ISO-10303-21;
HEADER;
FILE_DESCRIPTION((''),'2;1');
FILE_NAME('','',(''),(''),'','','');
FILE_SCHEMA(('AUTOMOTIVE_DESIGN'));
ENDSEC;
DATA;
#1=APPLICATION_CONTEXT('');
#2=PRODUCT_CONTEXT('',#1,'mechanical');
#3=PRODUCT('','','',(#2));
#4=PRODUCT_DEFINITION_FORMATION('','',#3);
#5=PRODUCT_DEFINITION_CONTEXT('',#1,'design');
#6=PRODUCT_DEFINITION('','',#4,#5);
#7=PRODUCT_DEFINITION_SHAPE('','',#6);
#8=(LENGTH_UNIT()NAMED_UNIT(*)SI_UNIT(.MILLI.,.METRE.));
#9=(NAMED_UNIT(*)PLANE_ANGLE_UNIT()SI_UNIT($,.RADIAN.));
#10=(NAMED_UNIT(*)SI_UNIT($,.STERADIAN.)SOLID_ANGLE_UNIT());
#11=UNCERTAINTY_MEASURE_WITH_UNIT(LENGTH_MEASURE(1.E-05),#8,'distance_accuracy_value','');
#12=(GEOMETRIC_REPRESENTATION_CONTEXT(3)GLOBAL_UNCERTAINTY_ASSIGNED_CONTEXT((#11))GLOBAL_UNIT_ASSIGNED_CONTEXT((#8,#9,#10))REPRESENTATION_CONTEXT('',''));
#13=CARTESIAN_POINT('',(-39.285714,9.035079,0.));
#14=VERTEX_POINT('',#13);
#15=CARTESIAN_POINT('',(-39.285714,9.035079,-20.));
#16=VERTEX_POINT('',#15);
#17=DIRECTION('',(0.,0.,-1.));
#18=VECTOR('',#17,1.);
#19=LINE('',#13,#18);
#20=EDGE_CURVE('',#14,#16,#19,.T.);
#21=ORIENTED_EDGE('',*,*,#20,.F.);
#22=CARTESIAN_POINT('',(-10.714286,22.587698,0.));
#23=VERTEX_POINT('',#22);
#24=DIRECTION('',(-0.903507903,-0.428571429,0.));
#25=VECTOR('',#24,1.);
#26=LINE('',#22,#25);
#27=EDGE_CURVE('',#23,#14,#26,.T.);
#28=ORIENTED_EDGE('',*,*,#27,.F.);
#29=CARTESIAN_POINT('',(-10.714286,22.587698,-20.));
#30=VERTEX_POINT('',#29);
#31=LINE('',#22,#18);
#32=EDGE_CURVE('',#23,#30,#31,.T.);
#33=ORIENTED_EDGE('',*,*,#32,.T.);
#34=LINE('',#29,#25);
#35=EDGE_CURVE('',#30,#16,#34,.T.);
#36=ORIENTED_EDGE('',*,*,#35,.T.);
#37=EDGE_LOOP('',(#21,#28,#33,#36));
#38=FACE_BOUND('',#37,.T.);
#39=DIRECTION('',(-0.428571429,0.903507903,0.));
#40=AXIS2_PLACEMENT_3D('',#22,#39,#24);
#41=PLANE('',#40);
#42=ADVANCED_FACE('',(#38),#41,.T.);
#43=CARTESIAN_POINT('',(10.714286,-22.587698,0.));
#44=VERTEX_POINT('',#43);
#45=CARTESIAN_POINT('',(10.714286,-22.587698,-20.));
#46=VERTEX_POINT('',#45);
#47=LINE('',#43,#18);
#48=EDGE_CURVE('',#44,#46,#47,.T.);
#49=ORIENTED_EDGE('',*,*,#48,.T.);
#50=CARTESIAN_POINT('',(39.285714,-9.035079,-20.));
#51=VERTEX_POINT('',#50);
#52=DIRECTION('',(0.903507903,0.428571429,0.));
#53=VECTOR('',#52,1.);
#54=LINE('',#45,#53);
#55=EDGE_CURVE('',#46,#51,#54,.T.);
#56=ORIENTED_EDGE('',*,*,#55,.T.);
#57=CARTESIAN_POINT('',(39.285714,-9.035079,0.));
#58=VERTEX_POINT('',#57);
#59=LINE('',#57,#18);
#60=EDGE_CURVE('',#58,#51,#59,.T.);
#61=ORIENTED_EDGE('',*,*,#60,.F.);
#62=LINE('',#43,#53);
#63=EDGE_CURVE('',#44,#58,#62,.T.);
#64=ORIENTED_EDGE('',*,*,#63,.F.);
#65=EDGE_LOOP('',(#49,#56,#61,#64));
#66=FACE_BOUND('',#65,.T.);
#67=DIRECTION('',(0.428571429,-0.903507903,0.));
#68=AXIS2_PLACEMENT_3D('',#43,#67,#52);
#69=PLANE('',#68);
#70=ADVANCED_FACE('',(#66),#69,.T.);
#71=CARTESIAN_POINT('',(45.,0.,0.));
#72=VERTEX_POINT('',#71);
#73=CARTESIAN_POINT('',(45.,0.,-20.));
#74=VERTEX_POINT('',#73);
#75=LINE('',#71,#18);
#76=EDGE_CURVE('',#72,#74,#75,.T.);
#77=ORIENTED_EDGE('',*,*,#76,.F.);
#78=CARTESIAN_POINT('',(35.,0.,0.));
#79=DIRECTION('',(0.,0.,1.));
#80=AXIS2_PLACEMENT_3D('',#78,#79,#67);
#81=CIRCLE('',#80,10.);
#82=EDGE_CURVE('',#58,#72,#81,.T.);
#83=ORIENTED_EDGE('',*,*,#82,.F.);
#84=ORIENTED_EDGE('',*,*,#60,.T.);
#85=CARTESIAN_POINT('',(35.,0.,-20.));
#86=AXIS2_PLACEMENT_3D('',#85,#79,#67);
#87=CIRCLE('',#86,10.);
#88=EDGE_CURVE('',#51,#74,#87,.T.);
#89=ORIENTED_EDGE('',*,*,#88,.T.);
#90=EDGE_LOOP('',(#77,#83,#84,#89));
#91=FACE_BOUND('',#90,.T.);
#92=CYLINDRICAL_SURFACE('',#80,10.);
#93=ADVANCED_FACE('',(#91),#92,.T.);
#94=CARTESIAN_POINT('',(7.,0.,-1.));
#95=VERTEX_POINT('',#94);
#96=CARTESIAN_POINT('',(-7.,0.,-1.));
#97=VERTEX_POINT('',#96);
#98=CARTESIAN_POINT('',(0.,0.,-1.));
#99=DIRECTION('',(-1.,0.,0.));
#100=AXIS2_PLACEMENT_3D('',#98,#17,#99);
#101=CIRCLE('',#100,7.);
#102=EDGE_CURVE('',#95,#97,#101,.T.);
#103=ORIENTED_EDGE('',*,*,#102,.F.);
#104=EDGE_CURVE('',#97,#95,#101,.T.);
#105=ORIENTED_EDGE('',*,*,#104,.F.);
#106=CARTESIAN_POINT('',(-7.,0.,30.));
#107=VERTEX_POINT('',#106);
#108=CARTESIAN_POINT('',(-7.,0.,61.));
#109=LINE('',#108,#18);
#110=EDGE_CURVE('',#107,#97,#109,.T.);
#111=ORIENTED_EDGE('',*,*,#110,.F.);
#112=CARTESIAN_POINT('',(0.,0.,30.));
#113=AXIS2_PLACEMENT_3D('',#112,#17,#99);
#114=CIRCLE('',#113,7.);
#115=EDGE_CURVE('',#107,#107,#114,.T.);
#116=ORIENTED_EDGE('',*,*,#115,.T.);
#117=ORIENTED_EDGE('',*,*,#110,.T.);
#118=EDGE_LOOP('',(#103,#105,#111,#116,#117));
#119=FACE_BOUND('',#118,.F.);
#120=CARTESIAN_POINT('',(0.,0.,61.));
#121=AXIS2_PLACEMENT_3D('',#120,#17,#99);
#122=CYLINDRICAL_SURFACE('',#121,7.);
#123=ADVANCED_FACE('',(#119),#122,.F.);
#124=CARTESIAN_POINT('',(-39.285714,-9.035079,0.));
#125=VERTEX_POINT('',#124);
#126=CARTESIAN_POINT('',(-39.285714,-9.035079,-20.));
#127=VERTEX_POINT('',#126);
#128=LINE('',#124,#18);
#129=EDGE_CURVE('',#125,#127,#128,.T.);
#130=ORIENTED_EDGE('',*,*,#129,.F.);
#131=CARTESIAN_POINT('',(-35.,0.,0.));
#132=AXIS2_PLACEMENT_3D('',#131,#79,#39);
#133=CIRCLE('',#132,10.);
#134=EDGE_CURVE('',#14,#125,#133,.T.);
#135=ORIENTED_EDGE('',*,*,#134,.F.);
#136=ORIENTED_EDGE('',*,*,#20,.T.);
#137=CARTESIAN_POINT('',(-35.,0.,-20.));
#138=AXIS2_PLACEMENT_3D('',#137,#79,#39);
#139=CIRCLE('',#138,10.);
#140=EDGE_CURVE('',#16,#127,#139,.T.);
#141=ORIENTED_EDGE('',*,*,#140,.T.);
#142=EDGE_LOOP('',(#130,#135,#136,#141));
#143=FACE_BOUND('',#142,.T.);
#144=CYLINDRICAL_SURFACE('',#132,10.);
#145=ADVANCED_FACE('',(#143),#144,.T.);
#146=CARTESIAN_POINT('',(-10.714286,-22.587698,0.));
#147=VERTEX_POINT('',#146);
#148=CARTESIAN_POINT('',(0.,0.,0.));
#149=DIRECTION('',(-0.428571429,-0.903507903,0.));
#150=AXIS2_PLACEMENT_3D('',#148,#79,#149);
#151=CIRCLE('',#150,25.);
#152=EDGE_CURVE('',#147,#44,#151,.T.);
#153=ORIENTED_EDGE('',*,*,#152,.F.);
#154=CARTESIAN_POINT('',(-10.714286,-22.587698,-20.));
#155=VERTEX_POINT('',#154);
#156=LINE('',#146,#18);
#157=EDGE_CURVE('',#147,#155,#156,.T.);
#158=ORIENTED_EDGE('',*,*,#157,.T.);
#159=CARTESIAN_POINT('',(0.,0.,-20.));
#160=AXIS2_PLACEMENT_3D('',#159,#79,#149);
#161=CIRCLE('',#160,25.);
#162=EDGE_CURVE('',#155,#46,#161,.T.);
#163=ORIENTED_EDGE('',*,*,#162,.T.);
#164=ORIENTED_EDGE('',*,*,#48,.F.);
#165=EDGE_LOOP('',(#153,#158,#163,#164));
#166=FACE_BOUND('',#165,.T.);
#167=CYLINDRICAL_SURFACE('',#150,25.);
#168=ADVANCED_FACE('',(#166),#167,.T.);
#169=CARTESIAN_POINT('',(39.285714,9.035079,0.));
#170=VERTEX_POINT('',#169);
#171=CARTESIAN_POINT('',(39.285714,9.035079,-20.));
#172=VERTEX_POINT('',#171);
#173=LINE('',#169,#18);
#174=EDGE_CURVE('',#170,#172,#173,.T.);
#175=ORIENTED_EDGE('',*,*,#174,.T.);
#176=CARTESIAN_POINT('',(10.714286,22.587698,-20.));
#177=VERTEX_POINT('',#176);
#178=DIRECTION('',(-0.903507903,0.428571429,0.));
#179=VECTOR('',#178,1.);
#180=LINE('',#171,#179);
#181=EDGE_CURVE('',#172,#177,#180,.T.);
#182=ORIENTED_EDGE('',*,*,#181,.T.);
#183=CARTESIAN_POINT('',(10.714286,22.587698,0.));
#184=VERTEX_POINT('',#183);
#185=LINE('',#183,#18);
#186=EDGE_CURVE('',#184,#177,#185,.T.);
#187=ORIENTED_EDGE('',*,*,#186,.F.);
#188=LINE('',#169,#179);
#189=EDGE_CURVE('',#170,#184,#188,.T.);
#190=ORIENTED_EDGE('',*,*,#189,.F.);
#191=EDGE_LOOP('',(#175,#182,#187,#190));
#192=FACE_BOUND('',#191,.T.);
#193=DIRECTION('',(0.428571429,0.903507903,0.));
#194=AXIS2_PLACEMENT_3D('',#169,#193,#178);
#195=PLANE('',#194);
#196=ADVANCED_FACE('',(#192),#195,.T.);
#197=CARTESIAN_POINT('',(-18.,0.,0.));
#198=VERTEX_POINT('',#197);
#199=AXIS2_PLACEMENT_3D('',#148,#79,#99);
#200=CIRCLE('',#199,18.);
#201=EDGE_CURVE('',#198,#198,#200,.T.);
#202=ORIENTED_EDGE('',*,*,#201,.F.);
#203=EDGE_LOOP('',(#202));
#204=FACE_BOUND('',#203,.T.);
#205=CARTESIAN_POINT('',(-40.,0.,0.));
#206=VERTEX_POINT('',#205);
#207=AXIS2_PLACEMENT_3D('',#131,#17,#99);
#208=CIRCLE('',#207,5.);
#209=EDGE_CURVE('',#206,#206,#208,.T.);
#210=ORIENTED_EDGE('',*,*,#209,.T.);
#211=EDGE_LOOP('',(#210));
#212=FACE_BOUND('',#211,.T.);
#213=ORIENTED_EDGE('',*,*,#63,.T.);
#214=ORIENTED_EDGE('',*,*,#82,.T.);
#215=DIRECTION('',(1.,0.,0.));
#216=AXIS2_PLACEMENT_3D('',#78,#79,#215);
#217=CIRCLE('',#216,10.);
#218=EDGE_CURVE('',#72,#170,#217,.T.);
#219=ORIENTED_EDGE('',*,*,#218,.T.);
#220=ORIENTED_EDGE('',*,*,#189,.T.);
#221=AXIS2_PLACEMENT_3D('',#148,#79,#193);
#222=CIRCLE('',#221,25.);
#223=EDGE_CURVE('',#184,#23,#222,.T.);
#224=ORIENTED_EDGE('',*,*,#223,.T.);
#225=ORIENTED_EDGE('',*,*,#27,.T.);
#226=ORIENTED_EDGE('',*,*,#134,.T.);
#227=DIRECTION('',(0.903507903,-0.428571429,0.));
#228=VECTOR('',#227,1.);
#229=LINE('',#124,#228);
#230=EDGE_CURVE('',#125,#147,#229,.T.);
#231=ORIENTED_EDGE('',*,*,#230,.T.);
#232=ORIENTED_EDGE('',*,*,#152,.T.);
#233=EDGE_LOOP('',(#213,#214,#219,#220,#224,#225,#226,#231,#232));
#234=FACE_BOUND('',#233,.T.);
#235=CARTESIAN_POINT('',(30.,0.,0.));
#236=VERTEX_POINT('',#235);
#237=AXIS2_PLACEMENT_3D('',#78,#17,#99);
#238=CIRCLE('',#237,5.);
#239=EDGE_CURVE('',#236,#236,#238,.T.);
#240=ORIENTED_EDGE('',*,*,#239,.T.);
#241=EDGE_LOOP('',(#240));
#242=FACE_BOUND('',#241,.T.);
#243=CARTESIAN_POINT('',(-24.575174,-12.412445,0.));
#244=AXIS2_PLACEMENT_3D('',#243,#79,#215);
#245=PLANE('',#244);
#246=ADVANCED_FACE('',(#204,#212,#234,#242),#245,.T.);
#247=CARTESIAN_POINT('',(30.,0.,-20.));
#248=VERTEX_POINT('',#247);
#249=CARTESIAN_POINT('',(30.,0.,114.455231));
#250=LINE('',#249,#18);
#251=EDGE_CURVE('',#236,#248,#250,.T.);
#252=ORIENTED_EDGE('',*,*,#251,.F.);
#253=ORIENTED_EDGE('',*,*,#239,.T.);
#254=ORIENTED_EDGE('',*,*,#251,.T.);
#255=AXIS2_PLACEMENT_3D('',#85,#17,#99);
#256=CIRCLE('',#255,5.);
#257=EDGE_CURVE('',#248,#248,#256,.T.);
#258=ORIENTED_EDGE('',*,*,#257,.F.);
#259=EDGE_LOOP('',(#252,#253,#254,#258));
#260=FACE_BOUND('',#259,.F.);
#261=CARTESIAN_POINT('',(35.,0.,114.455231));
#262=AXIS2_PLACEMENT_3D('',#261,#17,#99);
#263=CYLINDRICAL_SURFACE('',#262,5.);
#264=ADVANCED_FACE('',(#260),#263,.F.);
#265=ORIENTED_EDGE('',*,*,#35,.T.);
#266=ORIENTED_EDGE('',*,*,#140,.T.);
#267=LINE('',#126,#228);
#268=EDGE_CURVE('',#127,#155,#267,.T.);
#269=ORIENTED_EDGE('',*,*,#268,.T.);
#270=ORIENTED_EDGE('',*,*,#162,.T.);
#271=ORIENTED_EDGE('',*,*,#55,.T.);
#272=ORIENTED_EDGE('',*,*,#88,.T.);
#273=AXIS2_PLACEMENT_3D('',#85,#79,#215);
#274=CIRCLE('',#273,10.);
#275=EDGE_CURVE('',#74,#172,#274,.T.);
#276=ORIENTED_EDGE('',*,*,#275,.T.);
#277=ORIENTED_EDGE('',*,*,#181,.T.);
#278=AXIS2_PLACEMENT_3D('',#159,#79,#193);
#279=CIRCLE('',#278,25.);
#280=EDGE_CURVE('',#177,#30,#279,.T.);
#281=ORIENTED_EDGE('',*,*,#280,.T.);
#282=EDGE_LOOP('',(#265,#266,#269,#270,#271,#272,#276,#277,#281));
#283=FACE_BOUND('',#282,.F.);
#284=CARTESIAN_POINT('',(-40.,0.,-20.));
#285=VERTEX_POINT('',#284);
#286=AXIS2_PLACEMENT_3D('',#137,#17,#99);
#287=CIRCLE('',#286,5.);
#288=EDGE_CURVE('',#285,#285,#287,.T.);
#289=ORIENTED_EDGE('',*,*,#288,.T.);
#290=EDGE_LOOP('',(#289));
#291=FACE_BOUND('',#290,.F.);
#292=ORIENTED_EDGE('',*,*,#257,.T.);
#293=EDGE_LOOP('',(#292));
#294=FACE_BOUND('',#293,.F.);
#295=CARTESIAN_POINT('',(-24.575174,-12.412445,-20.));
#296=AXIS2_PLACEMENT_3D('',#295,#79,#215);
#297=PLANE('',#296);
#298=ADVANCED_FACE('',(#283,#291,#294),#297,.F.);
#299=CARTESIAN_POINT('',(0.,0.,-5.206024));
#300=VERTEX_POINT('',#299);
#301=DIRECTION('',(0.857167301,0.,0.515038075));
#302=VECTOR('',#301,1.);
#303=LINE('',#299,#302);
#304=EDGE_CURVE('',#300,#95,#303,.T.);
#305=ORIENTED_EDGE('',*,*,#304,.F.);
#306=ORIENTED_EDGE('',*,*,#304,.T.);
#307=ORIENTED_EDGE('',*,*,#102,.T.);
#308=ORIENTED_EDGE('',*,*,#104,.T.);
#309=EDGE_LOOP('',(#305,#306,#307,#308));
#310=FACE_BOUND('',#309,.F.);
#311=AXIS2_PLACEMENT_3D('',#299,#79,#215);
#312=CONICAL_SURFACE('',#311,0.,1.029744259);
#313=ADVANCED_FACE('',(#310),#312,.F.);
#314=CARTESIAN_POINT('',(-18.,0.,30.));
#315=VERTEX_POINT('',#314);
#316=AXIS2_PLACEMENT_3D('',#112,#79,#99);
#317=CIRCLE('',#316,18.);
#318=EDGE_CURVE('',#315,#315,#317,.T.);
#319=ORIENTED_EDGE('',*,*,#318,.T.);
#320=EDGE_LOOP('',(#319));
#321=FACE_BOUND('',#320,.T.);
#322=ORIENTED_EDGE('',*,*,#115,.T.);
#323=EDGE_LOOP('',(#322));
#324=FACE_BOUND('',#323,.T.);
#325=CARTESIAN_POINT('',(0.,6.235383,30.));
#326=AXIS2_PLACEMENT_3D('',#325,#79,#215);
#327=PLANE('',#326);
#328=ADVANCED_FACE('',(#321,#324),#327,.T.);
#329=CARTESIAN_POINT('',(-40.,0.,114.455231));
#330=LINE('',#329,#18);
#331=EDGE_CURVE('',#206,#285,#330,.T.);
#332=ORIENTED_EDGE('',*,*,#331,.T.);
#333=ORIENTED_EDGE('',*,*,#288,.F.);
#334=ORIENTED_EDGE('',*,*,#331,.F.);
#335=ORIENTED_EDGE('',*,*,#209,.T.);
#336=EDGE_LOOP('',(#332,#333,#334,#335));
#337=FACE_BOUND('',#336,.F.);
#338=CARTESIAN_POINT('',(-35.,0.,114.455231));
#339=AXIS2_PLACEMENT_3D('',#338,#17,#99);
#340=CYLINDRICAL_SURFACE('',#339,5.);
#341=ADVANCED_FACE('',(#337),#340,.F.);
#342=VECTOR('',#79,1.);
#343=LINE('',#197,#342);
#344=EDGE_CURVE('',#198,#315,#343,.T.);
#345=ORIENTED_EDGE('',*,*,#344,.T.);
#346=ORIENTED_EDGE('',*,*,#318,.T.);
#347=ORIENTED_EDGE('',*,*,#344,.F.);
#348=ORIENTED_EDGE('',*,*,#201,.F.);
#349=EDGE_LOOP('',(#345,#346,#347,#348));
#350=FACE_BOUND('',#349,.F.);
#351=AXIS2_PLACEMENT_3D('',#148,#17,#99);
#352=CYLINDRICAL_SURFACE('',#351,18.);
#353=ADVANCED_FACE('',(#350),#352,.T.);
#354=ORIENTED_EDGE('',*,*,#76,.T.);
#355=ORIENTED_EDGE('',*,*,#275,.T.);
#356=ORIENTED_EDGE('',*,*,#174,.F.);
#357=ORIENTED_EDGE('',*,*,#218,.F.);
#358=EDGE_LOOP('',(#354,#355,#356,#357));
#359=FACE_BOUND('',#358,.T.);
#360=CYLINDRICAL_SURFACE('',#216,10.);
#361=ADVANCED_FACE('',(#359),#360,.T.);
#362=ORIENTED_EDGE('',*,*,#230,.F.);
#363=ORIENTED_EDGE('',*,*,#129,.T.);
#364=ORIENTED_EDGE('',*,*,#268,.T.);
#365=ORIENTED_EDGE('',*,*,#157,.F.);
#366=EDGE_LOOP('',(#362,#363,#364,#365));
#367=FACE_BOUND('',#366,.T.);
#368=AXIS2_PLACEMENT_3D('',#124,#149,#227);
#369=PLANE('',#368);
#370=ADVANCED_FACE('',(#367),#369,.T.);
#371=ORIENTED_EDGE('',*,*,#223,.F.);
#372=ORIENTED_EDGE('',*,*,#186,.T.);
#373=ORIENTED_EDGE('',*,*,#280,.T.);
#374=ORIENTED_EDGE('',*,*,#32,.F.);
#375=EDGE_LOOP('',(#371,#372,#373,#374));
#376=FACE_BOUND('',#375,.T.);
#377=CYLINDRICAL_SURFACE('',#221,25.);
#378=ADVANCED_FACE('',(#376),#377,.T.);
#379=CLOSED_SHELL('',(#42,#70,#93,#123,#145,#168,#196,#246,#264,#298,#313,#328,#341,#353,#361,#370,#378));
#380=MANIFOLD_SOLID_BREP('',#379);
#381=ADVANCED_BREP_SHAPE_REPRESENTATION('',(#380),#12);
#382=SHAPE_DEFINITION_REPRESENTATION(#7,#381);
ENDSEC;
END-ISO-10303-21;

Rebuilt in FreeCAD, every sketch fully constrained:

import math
import FreeCAD as App
import Part
import Sketcher
from FreeCAD import Vector
Q = App.Units.Quantity

doc = App.newDocument("Part")
params = doc.addObject("Spreadsheet::Sheet", "Params")
for row, (alias, value) in enumerate([
    ("sketch1_radius", "10 mm"),
    ("sketch1_radius2", "25 mm"),
    ("pad1_length", "20 mm"),
    ("sketch2_diameter", "36 mm"),
    ("pad2_length", "30 mm"),
    ("sketch3_diameter", "10 mm"),
    ("hole_diameter", "10 mm"),
    ("sketch4_diameter", "14 mm"),
    ("hole2_diameter", "14 mm"),
    ("hole2_depth", "31 mm"),
], start=1):
    params.set(f"A{row}", alias)
    params.set(f"B{row}", "=" + value)
    params.setAlias(f"B{row}", alias)

body = doc.addObject("PartDesign::Body", "Body")

sketch1 = body.newObject("Sketcher::SketchObject", "Sketch")
sketch1.AttachmentSupport = (doc.getObject("XY_Plane"), [""])
sketch1.MapMode = "FlatFace"
sketch1.addGeometry([
    Part.LineSegment(Vector(10.714286, -22.587698, 0), Vector(39.285714, -9.035079, 0)),
    Part.ArcOfCircle(Part.Circle(Vector(35, 0, 0), Vector(0, 0, 1), 10), math.radians(-64.623066), math.radians(0)),
    Part.ArcOfCircle(Part.Circle(Vector(35, 0, 0), Vector(0, 0, 1), 10), math.radians(0), math.radians(64.623066)),
    Part.LineSegment(Vector(39.285714, 9.035079, 0), Vector(10.714286, 22.587698, 0)),
    Part.ArcOfCircle(Part.Circle(Vector(0, 0, 0), Vector(0, 0, 1), 25), math.radians(64.623066), math.radians(115.376934)),
    Part.LineSegment(Vector(-10.714286, 22.587698, 0), Vector(-39.285714, 9.035079, 0)),
    Part.ArcOfCircle(Part.Circle(Vector(-35, 0, 0), Vector(0, 0, 1), 10), math.radians(115.376934), math.radians(244.623066)),
    Part.LineSegment(Vector(-39.285714, -9.035079, 0), Vector(-10.714286, -22.587698, 0)),
    Part.ArcOfCircle(Part.Circle(Vector(0, 0, 0), Vector(0, 0, 1), 25), math.radians(-115.376934), math.radians(-64.623066)),
], False)
sketch1.addConstraint([
    Sketcher.Constraint("Tangent", 0, 2, 1, 1),
    Sketcher.Constraint("Tangent", 1, 2, 2, 1),
    Sketcher.Constraint("Tangent", 2, 2, 3, 1),
    Sketcher.Constraint("Tangent", 3, 2, 4, 1),
    Sketcher.Constraint("Tangent", 4, 2, 5, 1),
    Sketcher.Constraint("Tangent", 5, 2, 6, 1),
    Sketcher.Constraint("Tangent", 6, 2, 7, 1),
    Sketcher.Constraint("Tangent", 7, 2, 8, 1),
    Sketcher.Constraint("Tangent", 8, 2, 0, 1),
    Sketcher.Constraint("Coincident", 4, 3, -1, 1),
    Sketcher.Constraint("Coincident", 8, 3, -1, 1),
    Sketcher.Constraint("Equal", 1, 2),
    Sketcher.Constraint("Equal", 2, 6),
    Sketcher.Constraint("Equal", 4, 8),
    Sketcher.Constraint("Symmetric", 1, 3, 6, 3, -1, 1),
    Sketcher.Constraint("PointOnObject", 1, 3, -1),
    Sketcher.Constraint("PointOnObject", 1, 2, -1),
    Sketcher.Constraint("Radius", 1, Q("10 mm")),
    Sketcher.Constraint("Radius", 4, Q("25 mm")),
    Sketcher.Constraint("DistanceX", -1, 1, 1, 3, Q("35 mm")),
])
sketch1.setExpression("Constraints[17]", "Params.sketch1_radius")
sketch1.setExpression("Constraints[18]", "Params.sketch1_radius2")
pad1 = body.newObject("PartDesign::Pad", "Pad")
pad1.Profile = sketch1
pad1.setExpression("Length", "Params.pad1_length")
pad1.Reversed = True

sketch2 = body.newObject("Sketcher::SketchObject", "Sketch001")
sketch2.AttachmentSupport = (doc.getObject("XY_Plane"), [""])
sketch2.MapMode = "FlatFace"
sketch2.addGeometry(Part.Circle(Vector(0, 0, 0), Vector(0, 0, 1), 18), False)
sketch2.addConstraint([
    Sketcher.Constraint("Coincident", 0, 3, -1, 1),
    Sketcher.Constraint("Diameter", 0, Q("36 mm")),
])
sketch2.setExpression("Constraints[1]", "Params.sketch2_diameter")
pad2 = body.newObject("PartDesign::Pad", "Pad001")
pad2.Profile = sketch2
pad2.setExpression("Length", "Params.pad2_length")

sketch3 = body.newObject("Sketcher::SketchObject", "Sketch002")
sketch3.AttachmentSupport = (doc.getObject("XY_Plane"), [""])
sketch3.MapMode = "FlatFace"
sketch3.addGeometry([
    Part.Circle(Vector(-35, 0, 0), Vector(0, 0, 1), 5),
    Part.Circle(Vector(35, 0, 0), Vector(0, 0, 1), 5),
], False)
sketch3.addConstraint([
    Sketcher.Constraint("Equal", 0, 1),
    Sketcher.Constraint("Symmetric", 0, 3, 1, 3, -1, 1),
    Sketcher.Constraint("PointOnObject", 0, 3, -1),
    Sketcher.Constraint("Diameter", 0, Q("10 mm")),
    Sketcher.Constraint("DistanceX", 0, 3, -1, 1, Q("35 mm")),
])
sketch3.setExpression("Constraints[3]", "Params.sketch3_diameter")
doc.recompute()
hole = body.newObject("PartDesign::Hole", "Hole")
hole.Profile = sketch3
hole.ThreadType = "None"
hole.setExpression("Diameter", "Params.hole_diameter")
hole.DepthType = "ThroughAll"

sketch4 = body.newObject("Sketcher::SketchObject", "Sketch003")
sketch4.AttachmentSupport = (doc.getObject("XY_Plane"), [""])
sketch4.MapMode = "FlatFace"
sketch4.AttachmentOffset = App.Placement(Vector(0, 0, 30), App.Rotation())
sketch4.addGeometry(Part.Circle(Vector(0, 0, 0), Vector(0, 0, 1), 7), False)
sketch4.addConstraint([
    Sketcher.Constraint("Coincident", 0, 3, -1, 1),
    Sketcher.Constraint("Diameter", 0, Q("14 mm")),
])
sketch4.setExpression("Constraints[1]", "Params.sketch4_diameter")
doc.recompute()
hole2 = body.newObject("PartDesign::Hole", "Hole001")
hole2.Profile = sketch4
hole2.ThreadType = "None"
hole2.setExpression("Diameter", "Params.hole2_diameter")
hole2.DepthType = "Dimension"
hole2.setExpression("Depth", "Params.hole2_depth")
hole2.DrillPoint = "Angled"
hole2.DrillPointAngle = 118

doc.recompute()
